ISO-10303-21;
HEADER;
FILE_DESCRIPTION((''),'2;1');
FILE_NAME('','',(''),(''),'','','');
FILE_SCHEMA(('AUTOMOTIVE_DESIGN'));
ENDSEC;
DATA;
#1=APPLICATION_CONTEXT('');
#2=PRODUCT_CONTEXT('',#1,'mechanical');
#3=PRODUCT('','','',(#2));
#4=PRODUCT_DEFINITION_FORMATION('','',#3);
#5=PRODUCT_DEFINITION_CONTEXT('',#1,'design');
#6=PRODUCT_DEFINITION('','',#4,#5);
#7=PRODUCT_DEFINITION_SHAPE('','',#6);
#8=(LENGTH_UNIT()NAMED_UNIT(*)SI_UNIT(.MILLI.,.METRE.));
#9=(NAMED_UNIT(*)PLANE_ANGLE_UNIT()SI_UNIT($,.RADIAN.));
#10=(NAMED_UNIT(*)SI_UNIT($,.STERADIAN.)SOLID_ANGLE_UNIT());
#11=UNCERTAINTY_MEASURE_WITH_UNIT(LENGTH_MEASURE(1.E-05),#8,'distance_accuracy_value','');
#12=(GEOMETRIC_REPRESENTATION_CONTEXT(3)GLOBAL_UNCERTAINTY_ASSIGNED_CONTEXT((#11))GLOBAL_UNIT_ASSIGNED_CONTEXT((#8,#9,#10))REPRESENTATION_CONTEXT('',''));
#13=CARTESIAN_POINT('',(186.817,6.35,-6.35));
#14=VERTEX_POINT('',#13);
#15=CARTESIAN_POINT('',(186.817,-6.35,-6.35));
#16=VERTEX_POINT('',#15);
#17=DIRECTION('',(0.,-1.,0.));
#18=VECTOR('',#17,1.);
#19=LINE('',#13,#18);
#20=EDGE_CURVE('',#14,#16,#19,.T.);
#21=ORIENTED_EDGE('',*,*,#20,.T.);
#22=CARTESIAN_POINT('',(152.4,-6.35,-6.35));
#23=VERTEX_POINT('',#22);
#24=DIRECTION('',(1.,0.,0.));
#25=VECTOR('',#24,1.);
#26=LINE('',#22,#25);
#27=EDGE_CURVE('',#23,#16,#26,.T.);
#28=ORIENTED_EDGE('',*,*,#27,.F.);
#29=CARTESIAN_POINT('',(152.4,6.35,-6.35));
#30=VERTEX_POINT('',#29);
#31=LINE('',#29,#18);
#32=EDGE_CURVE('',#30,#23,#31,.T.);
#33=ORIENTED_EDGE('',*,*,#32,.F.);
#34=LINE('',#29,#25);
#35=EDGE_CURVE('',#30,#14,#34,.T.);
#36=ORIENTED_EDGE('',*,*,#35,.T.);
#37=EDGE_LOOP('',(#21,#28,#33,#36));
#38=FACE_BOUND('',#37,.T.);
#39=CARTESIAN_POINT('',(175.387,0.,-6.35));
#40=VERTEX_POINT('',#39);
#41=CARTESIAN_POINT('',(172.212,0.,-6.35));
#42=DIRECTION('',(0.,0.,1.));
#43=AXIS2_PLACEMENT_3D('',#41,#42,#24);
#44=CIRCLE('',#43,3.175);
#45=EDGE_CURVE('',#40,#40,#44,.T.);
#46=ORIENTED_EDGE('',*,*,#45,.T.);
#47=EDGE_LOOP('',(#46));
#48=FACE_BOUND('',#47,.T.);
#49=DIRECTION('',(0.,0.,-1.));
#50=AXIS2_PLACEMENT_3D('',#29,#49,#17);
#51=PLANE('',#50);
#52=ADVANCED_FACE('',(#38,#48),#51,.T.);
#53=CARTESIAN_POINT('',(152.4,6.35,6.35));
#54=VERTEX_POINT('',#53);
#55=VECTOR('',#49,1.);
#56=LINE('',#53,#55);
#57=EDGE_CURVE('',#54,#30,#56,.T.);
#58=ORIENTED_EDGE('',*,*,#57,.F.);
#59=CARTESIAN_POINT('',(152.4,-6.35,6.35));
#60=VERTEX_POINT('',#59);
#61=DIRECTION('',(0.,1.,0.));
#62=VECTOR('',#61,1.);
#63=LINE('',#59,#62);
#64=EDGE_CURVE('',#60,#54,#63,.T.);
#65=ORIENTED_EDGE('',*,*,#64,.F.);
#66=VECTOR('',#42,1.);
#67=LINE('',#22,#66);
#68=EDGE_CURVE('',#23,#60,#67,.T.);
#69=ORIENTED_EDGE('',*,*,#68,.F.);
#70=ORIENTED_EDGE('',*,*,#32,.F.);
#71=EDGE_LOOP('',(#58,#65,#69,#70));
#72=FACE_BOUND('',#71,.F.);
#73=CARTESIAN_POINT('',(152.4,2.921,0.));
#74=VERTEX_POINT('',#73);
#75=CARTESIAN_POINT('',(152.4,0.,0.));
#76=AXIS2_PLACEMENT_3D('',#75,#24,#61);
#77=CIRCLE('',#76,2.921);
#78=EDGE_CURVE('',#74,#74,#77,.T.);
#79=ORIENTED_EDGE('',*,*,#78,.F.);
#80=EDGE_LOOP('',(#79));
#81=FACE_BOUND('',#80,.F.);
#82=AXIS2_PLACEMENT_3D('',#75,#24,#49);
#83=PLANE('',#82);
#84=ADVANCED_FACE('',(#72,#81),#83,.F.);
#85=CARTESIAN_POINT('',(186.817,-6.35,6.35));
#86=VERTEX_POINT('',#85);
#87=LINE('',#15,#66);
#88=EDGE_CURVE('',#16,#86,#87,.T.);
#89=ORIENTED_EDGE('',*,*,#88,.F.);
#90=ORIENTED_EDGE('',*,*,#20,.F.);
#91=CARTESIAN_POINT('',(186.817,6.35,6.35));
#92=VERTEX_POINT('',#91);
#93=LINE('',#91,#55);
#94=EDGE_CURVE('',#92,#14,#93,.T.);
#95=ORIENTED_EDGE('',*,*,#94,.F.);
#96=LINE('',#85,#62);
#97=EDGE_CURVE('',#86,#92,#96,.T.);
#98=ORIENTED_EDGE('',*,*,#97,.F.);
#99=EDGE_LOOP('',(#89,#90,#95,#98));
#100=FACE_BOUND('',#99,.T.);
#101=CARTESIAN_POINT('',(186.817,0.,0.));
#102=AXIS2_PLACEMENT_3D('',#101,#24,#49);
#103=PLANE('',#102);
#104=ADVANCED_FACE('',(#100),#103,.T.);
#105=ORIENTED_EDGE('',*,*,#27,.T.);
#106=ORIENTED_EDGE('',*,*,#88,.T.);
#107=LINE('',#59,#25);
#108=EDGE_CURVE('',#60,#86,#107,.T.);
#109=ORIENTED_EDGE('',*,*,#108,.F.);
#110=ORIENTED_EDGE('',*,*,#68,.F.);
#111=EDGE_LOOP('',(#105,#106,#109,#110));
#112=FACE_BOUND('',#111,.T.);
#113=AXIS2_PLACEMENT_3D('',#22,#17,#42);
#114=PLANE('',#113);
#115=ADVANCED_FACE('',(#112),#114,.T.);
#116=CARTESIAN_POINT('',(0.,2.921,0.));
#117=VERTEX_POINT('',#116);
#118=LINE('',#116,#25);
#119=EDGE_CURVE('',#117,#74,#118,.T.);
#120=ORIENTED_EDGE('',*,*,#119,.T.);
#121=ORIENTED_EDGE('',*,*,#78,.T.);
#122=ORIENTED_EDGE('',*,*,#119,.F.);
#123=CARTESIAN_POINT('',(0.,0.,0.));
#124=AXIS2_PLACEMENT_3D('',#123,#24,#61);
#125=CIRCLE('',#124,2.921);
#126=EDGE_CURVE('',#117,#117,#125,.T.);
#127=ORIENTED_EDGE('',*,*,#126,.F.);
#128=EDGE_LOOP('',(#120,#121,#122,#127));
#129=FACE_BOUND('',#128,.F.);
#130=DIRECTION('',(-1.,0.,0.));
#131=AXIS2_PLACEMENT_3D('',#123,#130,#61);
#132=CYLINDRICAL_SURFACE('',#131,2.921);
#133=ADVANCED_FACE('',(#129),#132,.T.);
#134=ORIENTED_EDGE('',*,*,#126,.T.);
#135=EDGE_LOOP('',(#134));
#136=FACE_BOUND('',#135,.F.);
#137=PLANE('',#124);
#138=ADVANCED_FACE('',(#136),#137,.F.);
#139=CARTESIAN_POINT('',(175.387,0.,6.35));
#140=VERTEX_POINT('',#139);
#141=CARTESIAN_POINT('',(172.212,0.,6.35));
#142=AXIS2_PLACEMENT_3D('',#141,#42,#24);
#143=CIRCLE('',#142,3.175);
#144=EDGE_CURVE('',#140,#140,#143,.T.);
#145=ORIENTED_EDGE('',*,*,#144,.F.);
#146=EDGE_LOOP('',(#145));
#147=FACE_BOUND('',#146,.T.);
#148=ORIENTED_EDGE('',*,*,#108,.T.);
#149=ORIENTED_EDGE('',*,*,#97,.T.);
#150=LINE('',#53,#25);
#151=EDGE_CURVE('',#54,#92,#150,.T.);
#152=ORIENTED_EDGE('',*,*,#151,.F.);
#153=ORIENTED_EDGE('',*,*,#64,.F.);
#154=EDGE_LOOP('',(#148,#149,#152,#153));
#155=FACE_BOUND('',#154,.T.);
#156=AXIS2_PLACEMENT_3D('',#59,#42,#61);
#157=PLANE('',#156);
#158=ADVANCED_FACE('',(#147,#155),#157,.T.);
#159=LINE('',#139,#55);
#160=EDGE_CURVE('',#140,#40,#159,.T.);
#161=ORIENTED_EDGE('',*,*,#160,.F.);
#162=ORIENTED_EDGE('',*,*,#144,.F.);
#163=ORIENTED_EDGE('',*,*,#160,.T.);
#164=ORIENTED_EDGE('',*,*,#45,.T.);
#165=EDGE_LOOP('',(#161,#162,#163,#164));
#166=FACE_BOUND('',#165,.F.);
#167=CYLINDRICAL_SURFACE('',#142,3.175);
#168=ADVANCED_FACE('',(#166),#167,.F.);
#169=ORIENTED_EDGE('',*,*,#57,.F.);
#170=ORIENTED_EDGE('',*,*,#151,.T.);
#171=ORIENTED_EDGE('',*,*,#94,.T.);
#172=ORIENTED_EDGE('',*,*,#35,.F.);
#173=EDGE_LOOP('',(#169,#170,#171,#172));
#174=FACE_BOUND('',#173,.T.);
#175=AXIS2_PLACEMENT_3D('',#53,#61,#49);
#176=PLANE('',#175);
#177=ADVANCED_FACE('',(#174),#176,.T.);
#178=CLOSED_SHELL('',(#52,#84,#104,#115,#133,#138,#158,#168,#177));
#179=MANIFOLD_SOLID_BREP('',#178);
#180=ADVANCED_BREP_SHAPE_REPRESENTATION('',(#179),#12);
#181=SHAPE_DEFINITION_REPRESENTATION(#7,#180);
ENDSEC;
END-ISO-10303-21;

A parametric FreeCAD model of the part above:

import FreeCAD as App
import Part
import Sketcher
from FreeCAD import Vector
Q = App.Units.Quantity


def add_polygon(sketch, points):
    """Adds a closed chain of lines whose ends are joined by coincident constraints."""
    first, n = sketch.GeometryCount, len(points)
    for a, b in zip(points, points[1:] + points[:1]):
        sketch.addGeometry(Part.LineSegment(App.Vector(*a, 0), App.Vector(*b, 0)), False)
    for i in range(n):
        sketch.addConstraint(Sketcher.Constraint("Coincident", first + i, 2, first + (i + 1) % n, 1))

doc = App.newDocument("Part")
body = doc.addObject("PartDesign::Body", "Body")

sketch1 = body.newObject("Sketcher::SketchObject", "Sketch")
sketch1.AttachmentSupport = (doc.getObject("YZ_Plane"), [""])
sketch1.MapMode = "FlatFace"
sketch1.addGeometry(Part.Circle(Vector(0, 0, 0), Vector(0, 0, 1), 2.9), False)
sketch1.addConstraint([
    Sketcher.Constraint("Coincident", 0, 3, -1, 1),
    Sketcher.Constraint("Diameter", 0, Q("0.23 in")),
])
pad1 = body.newObject("PartDesign::Pad", "Pad")
pad1.Profile = sketch1
pad1.Length = Q("6 in")

sketch2 = body.newObject("Sketcher::SketchObject", "Sketch001")
sketch2.AttachmentSupport = (doc.getObject("YZ_Plane"), [""])
sketch2.MapMode = "FlatFace"
sketch2.AttachmentOffset = App.Placement(Vector(0, 0, 6 * 25.4), App.Rotation())
add_polygon(sketch2, [(6, -6), (6, 6), (-6, 6), (-6, -6)])
sketch2.addConstraint([
    Sketcher.Constraint("Vertical", 0),
    Sketcher.Constraint("Horizontal", 1),
    Sketcher.Constraint("Vertical", 2),
    Sketcher.Constraint("Horizontal", 3),
    Sketcher.Constraint("Symmetric", 0, 2, 2, 2, -1, 1),
    Sketcher.Constraint("Equal", 3, 0),
    Sketcher.Constraint("DistanceX", 1, 2, 1, 1, Q("0.5 in")),
])
pad2 = body.newObject("PartDesign::Pad", "Pad001")
pad2.Profile = sketch2
pad2.Length = Q("1.355 in")

sketch3 = body.newObject("Sketcher::SketchObject", "Sketch002")
sketch3.AttachmentSupport = (doc.getObject("XY_Plane"), [""])
sketch3.MapMode = "FlatFace"
sketch3.AttachmentOffset = App.Placement(Vector(0, 0, 0.25 * 25.4), App.Rotation())
sketch3.addGeometry(Part.Circle(Vector(172.2, 0, 0), Vector(0, 0, 1), 3.2), False)
sketch3.addConstraint([
    Sketcher.Constraint("PointOnObject", 0, 3, -1),
    Sketcher.Constraint("Diameter", 0, Q("0.25 in")),
    Sketcher.Constraint("DistanceX", -1, 1, 0, 3, Q("6.78 in")),
])
pocket1 = body.newObject("PartDesign::Pocket", "Pocket")
pocket1.Profile = sketch3
pocket1.Length = Q("1.355 in")

doc.recompute()
